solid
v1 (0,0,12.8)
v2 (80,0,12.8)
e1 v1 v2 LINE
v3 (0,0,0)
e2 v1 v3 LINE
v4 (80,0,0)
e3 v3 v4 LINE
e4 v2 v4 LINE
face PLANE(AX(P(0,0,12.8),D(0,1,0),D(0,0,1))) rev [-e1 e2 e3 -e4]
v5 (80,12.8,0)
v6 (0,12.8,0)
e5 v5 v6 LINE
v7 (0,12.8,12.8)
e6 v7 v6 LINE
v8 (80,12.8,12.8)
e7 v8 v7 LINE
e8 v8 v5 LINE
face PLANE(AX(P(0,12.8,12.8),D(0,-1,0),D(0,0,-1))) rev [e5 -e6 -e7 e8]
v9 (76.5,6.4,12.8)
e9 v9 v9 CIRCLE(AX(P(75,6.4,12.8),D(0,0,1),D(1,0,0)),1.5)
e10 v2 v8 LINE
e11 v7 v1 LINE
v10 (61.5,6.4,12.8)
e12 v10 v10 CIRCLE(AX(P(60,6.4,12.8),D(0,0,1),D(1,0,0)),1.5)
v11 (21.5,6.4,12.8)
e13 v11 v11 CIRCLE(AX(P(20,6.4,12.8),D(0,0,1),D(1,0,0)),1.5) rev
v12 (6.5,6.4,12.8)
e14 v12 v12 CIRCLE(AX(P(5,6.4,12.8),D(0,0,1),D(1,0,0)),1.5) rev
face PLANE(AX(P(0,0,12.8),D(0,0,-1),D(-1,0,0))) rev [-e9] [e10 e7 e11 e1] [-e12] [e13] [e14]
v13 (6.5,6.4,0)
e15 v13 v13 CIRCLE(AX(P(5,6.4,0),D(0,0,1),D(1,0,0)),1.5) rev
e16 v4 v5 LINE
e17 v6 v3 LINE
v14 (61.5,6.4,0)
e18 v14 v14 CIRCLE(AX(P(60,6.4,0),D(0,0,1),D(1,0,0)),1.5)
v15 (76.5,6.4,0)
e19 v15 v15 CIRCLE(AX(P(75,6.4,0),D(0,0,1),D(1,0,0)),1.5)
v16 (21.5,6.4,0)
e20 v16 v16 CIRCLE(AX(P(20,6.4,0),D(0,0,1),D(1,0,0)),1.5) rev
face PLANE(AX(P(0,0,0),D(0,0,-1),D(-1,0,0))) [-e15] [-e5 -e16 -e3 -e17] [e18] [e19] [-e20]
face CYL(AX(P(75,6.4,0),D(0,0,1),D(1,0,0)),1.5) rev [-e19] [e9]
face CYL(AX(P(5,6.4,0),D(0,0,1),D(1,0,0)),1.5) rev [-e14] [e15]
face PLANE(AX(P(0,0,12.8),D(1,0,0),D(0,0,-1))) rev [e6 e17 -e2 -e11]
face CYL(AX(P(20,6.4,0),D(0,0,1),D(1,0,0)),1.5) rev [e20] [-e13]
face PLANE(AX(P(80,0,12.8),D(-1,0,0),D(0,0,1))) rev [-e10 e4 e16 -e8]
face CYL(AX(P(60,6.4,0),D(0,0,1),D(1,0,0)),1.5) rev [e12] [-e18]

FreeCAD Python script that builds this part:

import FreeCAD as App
import Part
import Sketcher
Q = App.Units.Quantity

doc = App.newDocument("Part")
body = doc.addObject("PartDesign::Body", "Body")

# Sketch on XY plane
sketch1 = doc.addObject("Sketcher::SketchObject", "Sketch")
body.addObject(sketch1)
sketch1.AttachmentSupport = (doc.XY_Plane, [""])
sketch1.MapMode = "FlatFace"
sketch1.addGeometry([
    Part.LineSegment(App.Vector(0, 13, 0), App.Vector(0, 0, 0)),
    Part.LineSegment(App.Vector(0, 0, 0), App.Vector(80, 0, 0)),
    Part.LineSegment(App.Vector(80, 0, 0), App.Vector(80, 13, 0)),
    Part.LineSegment(App.Vector(80, 13, 0), App.Vector(0, 13, 0)),
], False)
sketch1.addConstraint([
    Sketcher.Constraint("Coincident", 0, 2, 1, 1),
    Sketcher.Constraint("Coincident", 1, 2, 2, 1),
    Sketcher.Constraint("Coincident", 2, 2, 3, 1),
    Sketcher.Constraint("Coincident", 3, 2, 0, 1),
    Sketcher.Constraint("Vertical", 0),
    Sketcher.Constraint("Horizontal", 1),
    Sketcher.Constraint("Vertical", 2),
    Sketcher.Constraint("Horizontal", 3),
    Sketcher.Constraint("Coincident", 0, 2, -1, 1),
    Sketcher.Constraint("DistanceX", 1, 1, 1, 2, Q("80 mm")),
    Sketcher.Constraint("DistanceY", 0, 2, 0, 1, Q("12.8 mm")),
])
pad1 = doc.addObject("PartDesign::Pad", "Pad")
body.addObject(pad1)
pad1.Profile = sketch1
pad1.Length = 12.8

# Sketch on XY plane
sketch2 = doc.addObject("Sketcher::SketchObject", "Sketch001")
body.addObject(sketch2)
sketch2.AttachmentSupport = (doc.XY_Plane, [""])
sketch2.MapMode = "FlatFace"
sketch2.AttachmentOffset = App.Placement(App.Vector(0, 0, 12.8), App.Rotation())
sketch2.addGeometry([
    Part.Circle(App.Vector(75, 6.4, 0), App.Vector(0, 0, 1), 1.5),
    Part.Circle(App.Vector(60, 6.4, 0), App.Vector(0, 0, 1), 1.5),
    Part.Circle(App.Vector(5, 6.4, 0), App.Vector(0, 0, 1), 1.5),
    Part.Circle(App.Vector(20, 6.4, 0), App.Vector(0, 0, 1), 1.5),
], False)
sketch2.addConstraint([
    Sketcher.Constraint("Equal", 0, 1),
    Sketcher.Constraint("Equal", 1, 2),
    Sketcher.Constraint("Equal", 2, 3),
    Sketcher.Constraint("Horizontal", 0, 3, 1, 3),
    Sketcher.Constraint("Horizontal", 1, 3, 2, 3),
    Sketcher.Constraint("Horizontal", 2, 3, 3, 3),
    Sketcher.Constraint("Diameter", 0, Q("3 mm")),
    Sketcher.Constraint("DistanceX", -1, 1, 0, 3, Q("75 mm")),
    Sketcher.Constraint("DistanceX", -1, 1, 1, 3, Q("60 mm")),
    Sketcher.Constraint("DistanceX", -1, 1, 2, 3, Q("5 mm")),
    Sketcher.Constraint("DistanceX", -1, 1, 3, 3, Q("20 mm")),
    Sketcher.Constraint("DistanceY", -1, 1, 0, 3, Q("6.4 mm")),
])
pocket1 = doc.addObject("PartDesign::Pocket", "Pocket")
body.addObject(pocket1)
pocket1.Profile = sketch2
pocket1.Length = 12.8

doc.recompute()
